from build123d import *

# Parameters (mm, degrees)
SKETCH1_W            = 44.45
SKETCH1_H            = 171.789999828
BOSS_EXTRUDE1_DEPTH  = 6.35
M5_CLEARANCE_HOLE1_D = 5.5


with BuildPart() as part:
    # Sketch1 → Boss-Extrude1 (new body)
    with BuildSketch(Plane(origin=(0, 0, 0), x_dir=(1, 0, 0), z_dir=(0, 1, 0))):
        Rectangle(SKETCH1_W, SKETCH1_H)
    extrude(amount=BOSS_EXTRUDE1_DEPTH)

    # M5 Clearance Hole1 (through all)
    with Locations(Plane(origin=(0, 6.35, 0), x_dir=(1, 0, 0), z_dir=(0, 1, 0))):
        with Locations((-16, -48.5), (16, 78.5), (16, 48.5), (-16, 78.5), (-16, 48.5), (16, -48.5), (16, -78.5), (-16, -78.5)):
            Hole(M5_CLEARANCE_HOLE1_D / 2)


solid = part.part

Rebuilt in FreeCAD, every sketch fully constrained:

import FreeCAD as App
import Part
import Sketcher
from FreeCAD import Vector
Q = App.Units.Quantity

doc = App.newDocument("Part")
body = doc.addObject("PartDesign::Body", "Body")

# Sketch on XZ plane
sketch1 = body.newObject("Sketcher::SketchObject", "Sketch")
sketch1.AttachmentSupport = (doc.getObject("XZ_Plane"), [""])
sketch1.MapMode = "FlatFace"
sketch1.addGeometry([
    Part.LineSegment(Vector(-22.225, -85.895, 0), Vector(-22.225, 85.895, 0)),
    Part.LineSegment(Vector(-22.225, 85.895, 0), Vector(22.225, 85.895, 0)),
    Part.LineSegment(Vector(22.225, 85.895, 0), Vector(22.225, -85.895, 0)),
    Part.LineSegment(Vector(22.225, -85.895, 0), Vector(-22.225, -85.895, 0)),
], False)
sketch1.addConstraint([
    Sketcher.Constraint("Coincident", 0, 2, 1, 1),
    Sketcher.Constraint("Coincident", 1, 2, 2, 1),
    Sketcher.Constraint("Coincident", 2, 2, 3, 1),
    Sketcher.Constraint("Coincident", 3, 2, 0, 1),
    Sketcher.Constraint("Vertical", 0),
    Sketcher.Constraint("Horizontal", 1),
    Sketcher.Constraint("Vertical", 2),
    Sketcher.Constraint("Horizontal", 3),
    Sketcher.Constraint("Symmetric", 0, 2, 2, 2, -1, 1),
    Sketcher.Constraint("DistanceX", 1, 1, 1, 2, Q("1.75 in")),
    Sketcher.Constraint("DistanceY", 0, 1, 0, 2, 171.79),
])
pad1 = body.newObject("PartDesign::Pad", "Pad")
pad1.Profile = sketch1
pad1.Length = Q("0.25 in")
pad1.Reversed = True

# Sketch on XZ plane
sketch2 = body.newObject("Sketcher::SketchObject", "Sketch001")
sketch2.AttachmentSupport = (doc.getObject("XZ_Plane"), [""])
sketch2.MapMode = "FlatFace"
sketch2.AttachmentOffset = App.Placement(Vector(0, 0, -0.25 * 25.4), App.Rotation())
sketch2.addGeometry([
    Part.Circle(Vector(-16, 48.5, 0), Vector(0, 0, 1), 2.75),  # 0
    Part.Circle(Vector(16, -78.5, 0), Vector(0, 0, 1), 2.75),  # 1
    Part.Circle(Vector(16, -48.5, 0), Vector(0, 0, 1), 2.75),  # 2
    Part.Circle(Vector(-16, -78.5, 0), Vector(0, 0, 1), 2.75),  # 3
    Part.Circle(Vector(-16, -48.5, 0), Vector(0, 0, 1), 2.75),  # 4
    Part.Circle(Vector(16, 48.5, 0), Vector(0, 0, 1), 2.75),  # 5
    Part.Circle(Vector(16, 78.5, 0), Vector(0, 0, 1), 2.75),  # 6
    Part.Circle(Vector(-16, 78.5, 0), Vector(0, 0, 1), 2.75),  # 7
], False)
sketch2.addConstraint([
    Sketcher.Constraint("Equal", 0, 1),
    Sketcher.Constraint("Equal", 1, 2),
    Sketcher.Constraint("Equal", 2, 3),
    Sketcher.Constraint("Equal", 3, 4),
    Sketcher.Constraint("Equal", 4, 5),
    Sketcher.Constraint("Equal", 5, 6),
    Sketcher.Constraint("Equal", 6, 7),
    Sketcher.Constraint("Symmetric", 0, 3, 2, 3, -1, 1),
    Sketcher.Constraint("Symmetric", 4, 3, 5, 3, -1, 1),
    Sketcher.Constraint("Symmetric", 3, 3, 6, 3, -1, 1),
    Sketcher.Constraint("Symmetric", 1, 3, 7, 3, -1, 1),
    Sketcher.Constraint("Symmetric", 1, 3, 3, 3, -2),
    Sketcher.Constraint("Symmetric", 2, 3, 4, 3, -2),
    Sketcher.Constraint("Vertical", 1, 3, 2, 3),
    Sketcher.Constraint("DistanceY", 1, 3, 0, 3, Q("5 in")),
    Sketcher.Constraint("Diameter", 0, 5.5),
    Sketcher.Constraint("DistanceX", 0, 3, -1, 1, 16.0),
    Sketcher.Constraint("DistanceY", -1, 1, 0, 3, 48.5),
])
doc.recompute()
hole = body.newObject("PartDesign::Hole", "Hole")
hole.Profile = sketch2
hole.ThreadType = "None"
hole.Diameter = 5.5
hole.DepthType = "ThroughAll"
hole.Reversed = True

doc.recompute()
